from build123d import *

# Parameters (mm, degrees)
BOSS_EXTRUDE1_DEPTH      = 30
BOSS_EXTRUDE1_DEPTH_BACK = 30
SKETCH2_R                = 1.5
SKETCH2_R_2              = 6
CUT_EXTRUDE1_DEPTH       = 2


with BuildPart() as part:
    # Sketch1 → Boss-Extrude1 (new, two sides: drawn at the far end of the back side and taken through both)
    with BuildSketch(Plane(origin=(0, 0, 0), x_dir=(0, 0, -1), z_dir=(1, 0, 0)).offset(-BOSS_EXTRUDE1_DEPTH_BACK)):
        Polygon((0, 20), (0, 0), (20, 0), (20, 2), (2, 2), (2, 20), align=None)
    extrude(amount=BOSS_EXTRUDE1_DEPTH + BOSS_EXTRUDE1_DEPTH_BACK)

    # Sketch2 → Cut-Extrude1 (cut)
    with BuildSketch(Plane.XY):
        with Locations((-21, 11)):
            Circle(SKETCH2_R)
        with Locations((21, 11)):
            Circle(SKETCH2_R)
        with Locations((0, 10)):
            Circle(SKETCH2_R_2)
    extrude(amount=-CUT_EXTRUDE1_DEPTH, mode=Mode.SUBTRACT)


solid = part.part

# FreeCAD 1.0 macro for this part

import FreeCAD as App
import Part
import Sketcher

V = App.Vector
Q = App.Units.Quantity


def add_polygon(sketch, points):
    """Adds a closed chain of lines whose ends are joined by coincident constraints."""
    first, n = sketch.GeometryCount, len(points)
    for a, b in zip(points, points[1:] + points[:1]):
        sketch.addGeometry(Part.LineSegment(App.Vector(*a, 0), App.Vector(*b, 0)), False)
    for i in range(n):
        sketch.addConstraint(Sketcher.Constraint("Coincident", first + i, 2, first + (i + 1) % n, 1))

doc = App.newDocument("Part")
body = doc.addObject("PartDesign::Body", "Body")

# Sketch on YZ plane
sketch1 = body.newObject("Sketcher::SketchObject", "Sketch")
sketch1.AttachmentSupport = (doc.getObject("YZ_Plane"), [""])
sketch1.MapMode = "FlatFace"
add_polygon(sketch1, [(20, 0), (0, 0), (0, -20), (2, -20), (2, -2), (20, -2)])  # lines 0-5
sketch1.addConstraint([
    Sketcher.Constraint("Horizontal", 0),
    Sketcher.Constraint("Vertical", 1),
    Sketcher.Constraint("Horizontal", 2),
    Sketcher.Constraint("Vertical", 3),
    Sketcher.Constraint("Horizontal", 4),
    Sketcher.Constraint("Vertical", 5),
    Sketcher.Constraint("Coincident", 0, 2, -1, 1),
    Sketcher.Constraint("Equal", 0, 1),
    Sketcher.Constraint("Equal", 4, 3),
    Sketcher.Constraint("DistanceX", 0, 2, 0, 1, Q("20 mm")),
    Sketcher.Constraint("DistanceX", 2, 1, 2, 2, Q("2 mm")),
])
pad1 = body.newObject("PartDesign::Pad", "Pad")
pad1.Profile = sketch1
pad1.Type = "TwoLengths"
pad1.Length = 30
pad1.Length2 = 30

# Sketch on XY plane
sketch2 = body.newObject("Sketcher::SketchObject", "Sketch001")
sketch2.AttachmentSupport = (doc.getObject("XY_Plane"), [""])
sketch2.MapMode = "FlatFace"
sketch2.addGeometry([
    Part.Circle(V(-21, 11, 0), V(0, 0, 1), 1.5),
    Part.Circle(V(21, 11, 0), V(0, 0, 1), 1.5),
    Part.Circle(V(0, 10, 0), V(0, 0, 1), 6),
], False)
sketch2.addConstraint([
    Sketcher.Constraint("Equal", 0, 1),
    Sketcher.Constraint("Symmetric", 0, 3, 1, 3, -2),
    Sketcher.Constraint("PointOnObject", 2, 3, -2),
    Sketcher.Constraint("Diameter", 0, Q("3 mm")),
    Sketcher.Constraint("Diameter", 2, Q("12 mm")),
    Sketcher.Constraint("DistanceX", 0, 3, -1, 1, Q("21 mm")),
    Sketcher.Constraint("DistanceY", -1, 1, 0, 3, Q("11 mm")),
    Sketcher.Constraint("DistanceY", -1, 1, 2, 3, Q("10 mm")),
])
pocket1 = body.newObject("PartDesign::Pocket", "Pocket")
pocket1.Profile = sketch2
pocket1.Length = 2

doc.recompute()
